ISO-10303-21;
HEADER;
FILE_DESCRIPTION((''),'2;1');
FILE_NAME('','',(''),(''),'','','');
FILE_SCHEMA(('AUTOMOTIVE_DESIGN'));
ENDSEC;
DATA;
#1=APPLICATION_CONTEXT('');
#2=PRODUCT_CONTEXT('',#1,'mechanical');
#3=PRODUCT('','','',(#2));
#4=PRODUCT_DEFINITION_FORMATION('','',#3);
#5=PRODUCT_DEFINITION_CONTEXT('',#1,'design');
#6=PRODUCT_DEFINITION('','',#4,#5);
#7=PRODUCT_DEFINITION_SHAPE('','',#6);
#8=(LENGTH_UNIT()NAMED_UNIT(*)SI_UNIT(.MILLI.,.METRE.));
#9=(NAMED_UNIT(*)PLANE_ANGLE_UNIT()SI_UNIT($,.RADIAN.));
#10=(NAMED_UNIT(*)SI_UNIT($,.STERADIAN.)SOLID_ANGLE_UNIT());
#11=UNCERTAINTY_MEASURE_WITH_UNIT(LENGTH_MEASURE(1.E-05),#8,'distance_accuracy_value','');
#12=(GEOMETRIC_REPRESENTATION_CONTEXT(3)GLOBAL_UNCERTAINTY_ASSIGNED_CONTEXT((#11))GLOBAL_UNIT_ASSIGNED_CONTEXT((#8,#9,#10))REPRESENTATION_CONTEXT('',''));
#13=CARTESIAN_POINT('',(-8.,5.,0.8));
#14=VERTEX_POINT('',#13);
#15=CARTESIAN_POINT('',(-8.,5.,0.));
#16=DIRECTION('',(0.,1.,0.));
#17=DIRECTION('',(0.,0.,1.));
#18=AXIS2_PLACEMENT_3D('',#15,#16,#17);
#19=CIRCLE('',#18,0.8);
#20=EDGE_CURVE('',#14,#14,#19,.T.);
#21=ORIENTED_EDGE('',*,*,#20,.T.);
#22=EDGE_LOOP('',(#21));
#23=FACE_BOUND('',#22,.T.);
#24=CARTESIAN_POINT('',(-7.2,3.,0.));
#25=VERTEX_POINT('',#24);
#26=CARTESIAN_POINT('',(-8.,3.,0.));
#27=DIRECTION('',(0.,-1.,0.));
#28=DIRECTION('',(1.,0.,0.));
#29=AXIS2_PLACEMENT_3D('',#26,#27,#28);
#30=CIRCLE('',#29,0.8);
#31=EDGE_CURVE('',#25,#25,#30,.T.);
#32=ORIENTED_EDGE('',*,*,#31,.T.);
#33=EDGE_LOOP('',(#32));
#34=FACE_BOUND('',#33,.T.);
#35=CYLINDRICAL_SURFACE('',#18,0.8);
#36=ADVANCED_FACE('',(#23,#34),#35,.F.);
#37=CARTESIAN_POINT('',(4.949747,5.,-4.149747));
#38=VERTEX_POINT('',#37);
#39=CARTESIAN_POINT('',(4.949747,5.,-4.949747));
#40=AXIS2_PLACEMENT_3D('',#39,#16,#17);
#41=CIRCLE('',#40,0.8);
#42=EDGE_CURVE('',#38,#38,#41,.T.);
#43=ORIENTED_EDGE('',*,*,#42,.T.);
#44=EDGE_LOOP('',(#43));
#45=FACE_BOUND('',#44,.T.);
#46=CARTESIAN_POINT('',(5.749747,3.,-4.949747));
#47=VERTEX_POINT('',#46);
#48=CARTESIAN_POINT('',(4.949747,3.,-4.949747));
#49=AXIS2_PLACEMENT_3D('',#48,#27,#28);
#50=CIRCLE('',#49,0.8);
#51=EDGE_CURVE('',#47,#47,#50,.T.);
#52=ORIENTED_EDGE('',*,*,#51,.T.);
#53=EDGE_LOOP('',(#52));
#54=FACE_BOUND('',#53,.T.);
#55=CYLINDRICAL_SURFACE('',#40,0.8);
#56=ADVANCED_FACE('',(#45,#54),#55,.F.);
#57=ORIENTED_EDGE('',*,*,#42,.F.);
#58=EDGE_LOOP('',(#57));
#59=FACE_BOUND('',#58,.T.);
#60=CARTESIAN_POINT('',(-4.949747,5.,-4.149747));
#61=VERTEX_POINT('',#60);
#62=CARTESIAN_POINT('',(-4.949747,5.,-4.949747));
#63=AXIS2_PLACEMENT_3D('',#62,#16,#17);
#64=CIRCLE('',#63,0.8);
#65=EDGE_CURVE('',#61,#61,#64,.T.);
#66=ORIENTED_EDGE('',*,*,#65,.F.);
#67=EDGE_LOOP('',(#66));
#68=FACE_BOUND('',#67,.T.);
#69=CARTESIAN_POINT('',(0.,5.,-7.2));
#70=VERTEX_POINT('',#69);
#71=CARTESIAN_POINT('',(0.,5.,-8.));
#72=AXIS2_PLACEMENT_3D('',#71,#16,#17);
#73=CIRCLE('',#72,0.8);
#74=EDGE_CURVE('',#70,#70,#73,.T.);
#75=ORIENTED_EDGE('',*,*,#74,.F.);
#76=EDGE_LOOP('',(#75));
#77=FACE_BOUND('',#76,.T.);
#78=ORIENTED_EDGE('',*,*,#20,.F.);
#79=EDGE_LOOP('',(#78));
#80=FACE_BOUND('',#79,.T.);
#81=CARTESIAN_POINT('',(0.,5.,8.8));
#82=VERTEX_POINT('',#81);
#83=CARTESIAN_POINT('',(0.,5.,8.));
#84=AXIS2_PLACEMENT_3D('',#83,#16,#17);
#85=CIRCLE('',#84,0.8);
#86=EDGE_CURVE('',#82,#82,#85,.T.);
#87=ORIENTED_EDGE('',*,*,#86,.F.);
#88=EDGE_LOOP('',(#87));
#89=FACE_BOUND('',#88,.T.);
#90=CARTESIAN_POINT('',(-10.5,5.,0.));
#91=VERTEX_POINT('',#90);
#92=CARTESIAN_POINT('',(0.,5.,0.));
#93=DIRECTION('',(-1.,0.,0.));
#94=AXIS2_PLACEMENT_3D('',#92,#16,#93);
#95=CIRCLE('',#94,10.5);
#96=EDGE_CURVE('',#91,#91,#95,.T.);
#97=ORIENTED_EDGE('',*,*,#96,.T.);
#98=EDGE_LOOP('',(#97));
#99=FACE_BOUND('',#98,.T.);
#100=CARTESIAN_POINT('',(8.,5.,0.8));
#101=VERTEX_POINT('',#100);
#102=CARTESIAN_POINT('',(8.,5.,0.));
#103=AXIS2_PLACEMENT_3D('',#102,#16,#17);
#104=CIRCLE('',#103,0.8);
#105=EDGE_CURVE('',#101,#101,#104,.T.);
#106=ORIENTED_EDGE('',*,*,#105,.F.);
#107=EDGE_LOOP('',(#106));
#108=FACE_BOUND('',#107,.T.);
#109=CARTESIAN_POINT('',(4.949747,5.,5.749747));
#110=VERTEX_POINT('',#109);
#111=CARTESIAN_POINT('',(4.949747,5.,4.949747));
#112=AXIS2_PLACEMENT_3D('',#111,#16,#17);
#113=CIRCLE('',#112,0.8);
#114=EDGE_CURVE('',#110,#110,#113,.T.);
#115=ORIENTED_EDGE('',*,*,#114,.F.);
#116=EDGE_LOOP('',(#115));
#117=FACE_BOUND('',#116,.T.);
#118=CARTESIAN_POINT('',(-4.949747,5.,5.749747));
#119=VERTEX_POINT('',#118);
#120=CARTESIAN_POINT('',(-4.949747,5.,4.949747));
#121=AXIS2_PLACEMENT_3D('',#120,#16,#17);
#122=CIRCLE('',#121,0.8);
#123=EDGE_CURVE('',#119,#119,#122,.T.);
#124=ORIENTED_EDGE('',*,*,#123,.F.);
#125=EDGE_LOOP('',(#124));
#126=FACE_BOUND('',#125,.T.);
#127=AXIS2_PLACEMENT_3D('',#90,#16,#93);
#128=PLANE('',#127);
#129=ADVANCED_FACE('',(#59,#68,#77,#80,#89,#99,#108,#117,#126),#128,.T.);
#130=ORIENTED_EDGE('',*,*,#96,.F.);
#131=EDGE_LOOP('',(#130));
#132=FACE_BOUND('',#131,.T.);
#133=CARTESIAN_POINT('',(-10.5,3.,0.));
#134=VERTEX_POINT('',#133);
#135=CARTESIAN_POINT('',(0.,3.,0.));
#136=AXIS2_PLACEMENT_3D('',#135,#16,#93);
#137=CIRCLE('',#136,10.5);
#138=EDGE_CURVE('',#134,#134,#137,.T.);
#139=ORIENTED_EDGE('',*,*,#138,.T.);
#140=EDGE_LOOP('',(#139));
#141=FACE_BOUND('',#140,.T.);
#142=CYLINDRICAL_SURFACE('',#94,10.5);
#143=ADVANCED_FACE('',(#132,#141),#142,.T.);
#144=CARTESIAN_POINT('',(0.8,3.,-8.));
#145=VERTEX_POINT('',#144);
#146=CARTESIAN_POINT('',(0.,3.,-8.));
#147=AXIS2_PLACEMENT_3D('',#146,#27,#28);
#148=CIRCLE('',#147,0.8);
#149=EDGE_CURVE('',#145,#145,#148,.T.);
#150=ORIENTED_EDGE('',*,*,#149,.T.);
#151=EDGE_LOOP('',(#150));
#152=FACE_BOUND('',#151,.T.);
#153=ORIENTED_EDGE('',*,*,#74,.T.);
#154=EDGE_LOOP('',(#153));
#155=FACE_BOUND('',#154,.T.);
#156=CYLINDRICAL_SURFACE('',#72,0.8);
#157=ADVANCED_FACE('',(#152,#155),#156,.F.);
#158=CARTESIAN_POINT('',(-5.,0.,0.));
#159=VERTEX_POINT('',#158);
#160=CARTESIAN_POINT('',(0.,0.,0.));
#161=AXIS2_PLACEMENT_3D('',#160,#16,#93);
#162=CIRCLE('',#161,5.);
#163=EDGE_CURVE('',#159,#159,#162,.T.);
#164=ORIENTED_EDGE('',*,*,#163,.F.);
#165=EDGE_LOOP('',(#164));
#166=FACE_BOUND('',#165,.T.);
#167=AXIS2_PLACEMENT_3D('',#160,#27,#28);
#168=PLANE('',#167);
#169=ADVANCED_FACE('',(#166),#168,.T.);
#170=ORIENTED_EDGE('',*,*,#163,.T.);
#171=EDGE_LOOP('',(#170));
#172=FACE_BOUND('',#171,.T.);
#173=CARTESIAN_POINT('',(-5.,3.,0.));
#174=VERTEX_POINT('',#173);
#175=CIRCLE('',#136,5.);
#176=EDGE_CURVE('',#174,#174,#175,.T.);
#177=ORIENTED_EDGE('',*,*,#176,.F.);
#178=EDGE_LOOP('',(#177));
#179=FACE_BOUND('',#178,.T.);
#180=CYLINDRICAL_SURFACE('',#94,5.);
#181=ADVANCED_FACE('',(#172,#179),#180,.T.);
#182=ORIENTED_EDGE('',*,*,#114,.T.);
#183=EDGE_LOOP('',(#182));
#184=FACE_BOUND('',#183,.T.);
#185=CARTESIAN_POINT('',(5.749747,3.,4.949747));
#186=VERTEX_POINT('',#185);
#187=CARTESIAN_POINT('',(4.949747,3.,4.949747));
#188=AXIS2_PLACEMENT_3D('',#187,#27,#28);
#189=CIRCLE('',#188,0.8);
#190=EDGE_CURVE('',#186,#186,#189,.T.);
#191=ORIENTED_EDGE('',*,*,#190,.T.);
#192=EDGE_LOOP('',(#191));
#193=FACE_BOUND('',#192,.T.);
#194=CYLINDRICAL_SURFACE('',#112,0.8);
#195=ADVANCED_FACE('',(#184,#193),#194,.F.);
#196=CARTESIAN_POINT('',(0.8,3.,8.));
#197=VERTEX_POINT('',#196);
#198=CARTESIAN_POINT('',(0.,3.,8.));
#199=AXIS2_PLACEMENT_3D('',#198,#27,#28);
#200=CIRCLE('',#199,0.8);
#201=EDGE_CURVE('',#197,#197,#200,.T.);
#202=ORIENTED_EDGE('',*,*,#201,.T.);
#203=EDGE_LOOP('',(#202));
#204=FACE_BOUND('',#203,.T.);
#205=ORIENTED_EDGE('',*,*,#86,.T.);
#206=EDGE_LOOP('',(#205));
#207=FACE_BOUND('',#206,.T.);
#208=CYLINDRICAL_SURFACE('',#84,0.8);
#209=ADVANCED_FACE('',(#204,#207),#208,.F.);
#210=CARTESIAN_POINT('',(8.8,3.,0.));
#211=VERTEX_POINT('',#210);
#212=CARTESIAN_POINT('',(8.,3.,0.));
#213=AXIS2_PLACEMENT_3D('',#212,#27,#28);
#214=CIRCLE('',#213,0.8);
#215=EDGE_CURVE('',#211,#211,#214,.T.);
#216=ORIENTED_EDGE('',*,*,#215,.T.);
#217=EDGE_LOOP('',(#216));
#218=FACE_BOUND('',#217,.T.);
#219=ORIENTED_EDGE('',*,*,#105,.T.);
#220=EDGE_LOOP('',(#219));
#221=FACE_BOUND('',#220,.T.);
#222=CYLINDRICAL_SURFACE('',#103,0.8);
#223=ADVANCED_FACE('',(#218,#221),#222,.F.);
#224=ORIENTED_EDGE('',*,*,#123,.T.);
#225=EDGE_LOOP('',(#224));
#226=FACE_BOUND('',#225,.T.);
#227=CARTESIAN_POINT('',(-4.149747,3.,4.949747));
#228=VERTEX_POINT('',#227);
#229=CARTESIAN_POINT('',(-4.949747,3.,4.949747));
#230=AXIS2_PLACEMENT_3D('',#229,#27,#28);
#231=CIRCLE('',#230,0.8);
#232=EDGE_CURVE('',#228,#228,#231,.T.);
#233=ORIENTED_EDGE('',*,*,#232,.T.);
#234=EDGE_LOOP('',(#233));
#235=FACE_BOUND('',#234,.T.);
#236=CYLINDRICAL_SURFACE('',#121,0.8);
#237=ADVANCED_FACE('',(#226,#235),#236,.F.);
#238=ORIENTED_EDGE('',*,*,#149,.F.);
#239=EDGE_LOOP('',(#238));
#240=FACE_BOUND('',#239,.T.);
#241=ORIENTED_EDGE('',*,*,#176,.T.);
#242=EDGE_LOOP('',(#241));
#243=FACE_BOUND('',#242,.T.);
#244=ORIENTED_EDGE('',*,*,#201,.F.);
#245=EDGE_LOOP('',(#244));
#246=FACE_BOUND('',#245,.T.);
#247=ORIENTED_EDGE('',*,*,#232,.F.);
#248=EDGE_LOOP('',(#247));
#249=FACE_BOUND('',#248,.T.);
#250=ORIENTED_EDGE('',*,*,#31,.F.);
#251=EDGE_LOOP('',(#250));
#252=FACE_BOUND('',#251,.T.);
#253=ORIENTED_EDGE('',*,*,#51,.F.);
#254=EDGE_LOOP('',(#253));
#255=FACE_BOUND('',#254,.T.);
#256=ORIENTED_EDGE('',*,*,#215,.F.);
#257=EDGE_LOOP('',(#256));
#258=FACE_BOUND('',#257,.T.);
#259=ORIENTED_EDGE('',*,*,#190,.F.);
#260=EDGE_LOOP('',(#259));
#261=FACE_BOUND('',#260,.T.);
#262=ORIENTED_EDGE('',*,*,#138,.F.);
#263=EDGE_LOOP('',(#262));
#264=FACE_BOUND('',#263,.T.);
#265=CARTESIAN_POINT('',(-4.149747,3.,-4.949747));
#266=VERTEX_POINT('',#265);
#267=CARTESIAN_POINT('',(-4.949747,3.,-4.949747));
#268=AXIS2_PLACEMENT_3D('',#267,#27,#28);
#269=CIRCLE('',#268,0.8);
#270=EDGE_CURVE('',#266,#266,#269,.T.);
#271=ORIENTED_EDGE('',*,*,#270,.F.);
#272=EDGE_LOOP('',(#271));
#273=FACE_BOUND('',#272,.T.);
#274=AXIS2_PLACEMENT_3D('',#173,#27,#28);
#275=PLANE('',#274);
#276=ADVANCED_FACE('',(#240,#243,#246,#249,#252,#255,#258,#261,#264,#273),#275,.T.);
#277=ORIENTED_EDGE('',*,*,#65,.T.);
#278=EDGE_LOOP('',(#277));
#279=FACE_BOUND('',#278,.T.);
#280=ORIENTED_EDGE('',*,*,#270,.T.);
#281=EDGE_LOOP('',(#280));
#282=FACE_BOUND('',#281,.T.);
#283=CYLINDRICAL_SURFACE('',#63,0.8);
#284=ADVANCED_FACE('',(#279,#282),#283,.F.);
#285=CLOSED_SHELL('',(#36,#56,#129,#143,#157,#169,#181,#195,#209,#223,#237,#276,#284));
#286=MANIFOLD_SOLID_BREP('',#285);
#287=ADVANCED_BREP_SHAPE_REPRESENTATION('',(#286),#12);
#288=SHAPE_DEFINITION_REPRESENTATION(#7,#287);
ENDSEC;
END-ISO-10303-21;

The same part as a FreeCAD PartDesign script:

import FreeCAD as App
import Part
import Sketcher
from FreeCAD import Vector
Q = App.Units.Quantity

doc = App.newDocument("Part")
params = doc.addObject("Spreadsheet::Sheet", "Params")
for row, (alias, value) in enumerate([
    ("sketch1_width", "5 mm"),
    ("sketch1_height", "3 mm"),
    ("sketch1_width2", "10.5 mm"),
    ("revolution_angle", "360 deg"),
    ("sketch2_width", "6 mm"),
    ("sketch2_height", "0.8 mm"),
    ("groove_angle", "360 deg"),
    ("linearpattern_pitch", "5.814124 mm"),
    ("sketch3_height", "6 mm"),
    ("sketch3_width", "0.8 mm"),
    ("groove2_angle", "360 deg"),
    ("sketch4_width", "6 mm"),
    ("sketch4_height", "0.8 mm"),
    ("groove3_angle", "360 deg"),
    ("sketch5_height", "6 mm"),
    ("sketch5_width", "0.8 mm"),
    ("groove4_angle", "360 deg"),
], start=1):
    params.set(f"A{row}", alias)
    params.set(f"B{row}", "=" + value)
    params.setAlias(f"B{row}", alias)

body = doc.addObject("PartDesign::Body", "Body")

sketch1 = doc.addObject("Sketcher::SketchObject", "Sketch")
body.addObject(sketch1)
sketch1.AttachmentSupport = (doc.XY_Plane, [""])
sketch1.MapMode = "FlatFace"
sketch1.addGeometry(Part.LineSegment(Vector(-5, 3, 0), Vector(-5, 0, 0)), False)
sketch1.addGeometry(Part.LineSegment(Vector(-5, 0, 0), Vector(0, 0, 0)), False)
sketch1.addGeometry(Part.LineSegment(Vector(0, 0, 0), Vector(0, 5, 0)), False)
sketch1.addGeometry(Part.LineSegment(Vector(0, 5, 0), Vector(-10.5, 5, 0)), False)
sketch1.addGeometry(Part.LineSegment(Vector(-10.5, 5, 0), Vector(-10.5, 3, 0)), False)
sketch1.addGeometry(Part.LineSegment(Vector(-10.5, 3, 0), Vector(-5, 3, 0)), False)
sketch1.addConstraint(Sketcher.Constraint("Coincident", 0, 2, 1, 1))
sketch1.addConstraint(Sketcher.Constraint("Coincident", 1, 2, 2, 1))
sketch1.addConstraint(Sketcher.Constraint("Coincident", 2, 2, 3, 1))
sketch1.addConstraint(Sketcher.Constraint("Coincident", 3, 2, 4, 1))
sketch1.addConstraint(Sketcher.Constraint("Coincident", 4, 2, 5, 1))
sketch1.addConstraint(Sketcher.Constraint("Coincident", 5, 2, 0, 1))
sketch1.addConstraint(Sketcher.Constraint("Vertical", 0))
sketch1.addConstraint(Sketcher.Constraint("Horizontal", 1))
sketch1.addConstraint(Sketcher.Constraint("Vertical", 2))
sketch1.addConstraint(Sketcher.Constraint("Horizontal", 3))
sketch1.addConstraint(Sketcher.Constraint("Vertical", 4))
sketch1.addConstraint(Sketcher.Constraint("Horizontal", 5))
sketch1.addConstraint(Sketcher.Constraint("Coincident", 1, 2, -1, 1))
sketch1.addConstraint(Sketcher.Constraint("Equal", 1, 2))
sketch1.addConstraint(Sketcher.Constraint("DistanceX", 1, 1, 1, 2, 5.0))
sketch1.addConstraint(Sketcher.Constraint("DistanceY", 0, 2, 0, 1, 3.0))
sketch1.addConstraint(Sketcher.Constraint("DistanceX", 3, 2, 3, 1, 10.5))
sketch1.setExpression("Constraints[14]", "Params.sketch1_width")
sketch1.setExpression("Constraints[15]", "Params.sketch1_height")
sketch1.setExpression("Constraints[16]", "Params.sketch1_width2")
revolution = doc.addObject("PartDesign::Revolution", "Revolution")
body.addObject(revolution)
revolution.Profile = sketch1
revolution.ReferenceAxis = (sketch1, ["V_Axis"])
revolution.setExpression("Angle", "Params.revolution_angle")

sketch2 = doc.addObject("Sketcher::SketchObject", "Sketch001")
body.addObject(sketch2)
sketch2.AttachmentSupport = (doc.YZ_Plane, [""])
sketch2.MapMode = "FlatFace"
sketch2.AttachmentOffset = App.Placement(Vector(0, 0, 8), App.Rotation())
sketch2.addGeometry(Part.LineSegment(Vector(-1.5, 0, 0), Vector(5, 0, 0)), False)
sketch2.addGeometry(Part.LineSegment(Vector(5, 0, 0), Vector(5, 0.8, 0)), False)
sketch2.addGeometry(Part.LineSegment(Vector(5, 0.8, 0), Vector(-1, 0.8, 0)), False)
sketch2.addGeometry(Part.LineSegment(Vector(-1, 0.8, 0), Vector(-1.5, 0, 0)), False)
sketch2.addConstraint(Sketcher.Constraint("Coincident", 0, 2, 1, 1))
sketch2.addConstraint(Sketcher.Constraint("Coincident", 1, 2, 2, 1))
sketch2.addConstraint(Sketcher.Constraint("Coincident", 2, 2, 3, 1))
sketch2.addConstraint(Sketcher.Constraint("Coincident", 3, 2, 0, 1))
sketch2.addConstraint(Sketcher.Constraint("Horizontal", 0))
sketch2.addConstraint(Sketcher.Constraint("Vertical", 1))
sketch2.addConstraint(Sketcher.Constraint("Horizontal", 2))
sketch2.addConstraint(Sketcher.Constraint("PointOnObject", 0, 2, -1))
sketch2.addConstraint(Sketcher.Constraint("DistanceX", 2, 2, 2, 1, 6.0))
sketch2.addConstraint(Sketcher.Constraint("Angle", 3, Q("-121 deg")))
sketch2.addConstraint(Sketcher.Constraint("DistanceY", 1, 1, 1, 2, 0.8))
sketch2.addConstraint(Sketcher.Constraint("DistanceX", -1, 1, 0, 2, 5.0))
sketch2.setExpression("Constraints[8]", "Params.sketch2_width")
sketch2.setExpression("Constraints[10]", "Params.sketch2_height")
groove = doc.addObject("PartDesign::Groove", "Groove")
body.addObject(groove)
groove.Profile = sketch2
groove.ReferenceAxis = (sketch2, ["H_Axis"])
groove.setExpression("Angle", "Params.groove_angle")
doc.recompute()

datumline = doc.addObject("PartDesign::Line", "DatumLine")
body.addObject(datumline)
datumline.Placement = App.Placement(Vector(0, 0, 0), App.Rotation(Vector(0, 0, 1), Vector(-0.524628029, 0, 0.851331564)))
linearpattern = doc.addObject("PartDesign::LinearPattern", "LinearPattern")
body.addObject(linearpattern)
linearpattern.Originals = [groove]
linearpattern.Direction = (datumline, [""])
linearpattern.Mode = "offset"
linearpattern.setExpression("Offset", "Params.linearpattern_pitch")
linearpattern.Occurrences = 2
body.Tip = linearpattern
doc.recompute()

polarpattern = doc.addObject("PartDesign::PolarPattern", "PolarPattern")
body.addObject(polarpattern)
polarpattern.Originals = [groove]
polarpattern.Axis = (doc.Y_Axis, [""])
polarpattern.Angle = 360
polarpattern.Occurrences = 4
body.Tip = polarpattern

sketch3 = doc.addObject("Sketcher::SketchObject", "Sketch002")
body.addObject(sketch3)
sketch3.AttachmentSupport = (doc.XY_Plane, [""])
sketch3.MapMode = "FlatFace"
sketch3.AttachmentOffset = App.Placement(Vector(0, 0, -4.949747), App.Rotation())
sketch3.addGeometry(Part.LineSegment(Vector(4.9, -1.5, 0), Vector(4.9, 5, 0)), False)
sketch3.addGeometry(Part.LineSegment(Vector(4.9, 5, 0), Vector(5.7, 5, 0)), False)
sketch3.addGeometry(Part.LineSegment(Vector(5.7, 5, 0), Vector(5.7, -1, 0)), False)
sketch3.addGeometry(Part.LineSegment(Vector(5.7, -1, 0), Vector(4.9, -1.5, 0)), False)
sketch3.addGeometry(Part.LineSegment(Vector(4.9, 5, 0), Vector(4.9, -1.5, 0)), True)
sketch3.addConstraint(Sketcher.Constraint("Coincident", 0, 2, 1, 1))
sketch3.addConstraint(Sketcher.Constraint("Coincident", 1, 2, 2, 1))
sketch3.addConstraint(Sketcher.Constraint("Coincident", 2, 2, 3, 1))
sketch3.addConstraint(Sketcher.Constraint("Coincident", 3, 2, 0, 1))
sketch3.addConstraint(Sketcher.Constraint("Vertical", 0))
sketch3.addConstraint(Sketcher.Constraint("Horizontal", 1))
sketch3.addConstraint(Sketcher.Constraint("Vertical", 2))
sketch3.addConstraint(Sketcher.Constraint("Vertical", 4))
sketch3.addConstraint(Sketcher.Constraint("Coincident", 4, 1, 0, 2))
sketch3.addConstraint(Sketcher.Constraint("Equal", 0, 4))
sketch3.addConstraint(Sketcher.Constraint("DistanceY", 2, 2, 2, 1, 6.0))
sketch3.addConstraint(Sketcher.Constraint("Angle", 3, Q("-149 deg")))
sketch3.addConstraint(Sketcher.Constraint("DistanceX", 1, 1, 1, 2, 0.8))
sketch3.addConstraint(Sketcher.Constraint("DistanceY", -1, 1, 0, 2, 5.0))
sketch3.addConstraint(Sketcher.Constraint("DistanceX", -1, 1, 0, 2, 4.949747))
sketch3.setExpression("Constraints[10]", "Params.sketch3_height")
sketch3.setExpression("Constraints[12]", "Params.sketch3_width")
groove2 = doc.addObject("PartDesign::Groove", "Groove001")
body.addObject(groove2)
groove2.Profile = sketch3
groove2.ReferenceAxis = (sketch3, ["Axis0"])
groove2.setExpression("Angle", "Params.groove2_angle")

sketch4 = doc.addObject("Sketcher::SketchObject", "Sketch003")
body.addObject(sketch4)
sketch4.AttachmentSupport = (doc.YZ_Plane, [""])
sketch4.MapMode = "FlatFace"
sketch4.AttachmentOffset = App.Placement(Vector(0, 0, -4.949747), App.Rotation())
sketch4.addGeometry(Part.LineSegment(Vector(-1.5, -4.9, 0), Vector(5, -4.9, 0)), False)
sketch4.addGeometry(Part.LineSegment(Vector(5, -4.9, 0), Vector(5, -5.7, 0)), False)
sketch4.addGeometry(Part.LineSegment(Vector(5, -5.7, 0), Vector(-1, -5.7, 0)), False)
sketch4.addGeometry(Part.LineSegment(Vector(-1, -5.7, 0), Vector(-1.5, -4.9, 0)), False)
sketch4.addGeometry(Part.LineSegment(Vector(5, -4.9, 0), Vector(-1.5, -4.9, 0)), True)
sketch4.addConstraint(Sketcher.Constraint("Coincident", 0, 2, 1, 1))
sketch4.addConstraint(Sketcher.Constraint("Coincident", 1, 2, 2, 1))
sketch4.addConstraint(Sketcher.Constraint("Coincident", 2, 2, 3, 1))
sketch4.addConstraint(Sketcher.Constraint("Coincident", 3, 2, 0, 1))
sketch4.addConstraint(Sketcher.Constraint("Horizontal", 0))
sketch4.addConstraint(Sketcher.Constraint("Vertical", 1))
sketch4.addConstraint(Sketcher.Constraint("Horizontal", 2))
sketch4.addConstraint(Sketcher.Constraint("Horizontal", 4))
sketch4.addConstraint(Sketcher.Constraint("Coincident", 4, 1, 0, 2))
sketch4.addConstraint(Sketcher.Constraint("Equal", 0, 4))
sketch4.addConstraint(Sketcher.Constraint("DistanceX", 2, 2, 2, 1, 6.0))
sketch4.addConstraint(Sketcher.Constraint("Angle", 3, Q("121 deg")))
sketch4.addConstraint(Sketcher.Constraint("DistanceY", 1, 2, 1, 1, 0.8))
sketch4.addConstraint(Sketcher.Constraint("DistanceX", -1, 1, 0, 2, 5.0))
sketch4.addConstraint(Sketcher.Constraint("DistanceY", 0, 2, -1, 1, 4.949747))
sketch4.setExpression("Constraints[10]", "Params.sketch4_width")
sketch4.setExpression("Constraints[12]", "Params.sketch4_height")
groove3 = doc.addObject("PartDesign::Groove", "Groove002")
body.addObject(groove3)
groove3.Profile = sketch4
groove3.ReferenceAxis = (sketch4, ["Axis0"])
groove3.setExpression("Angle", "Params.groove3_angle")

sketch5 = doc.addObject("Sketcher::SketchObject", "Sketch004")
body.addObject(sketch5)
sketch5.AttachmentSupport = (doc.XY_Plane, [""])
sketch5.MapMode = "FlatFace"
sketch5.AttachmentOffset = App.Placement(Vector(0, 0, 4.949747), App.Rotation())
sketch5.addGeometry(Part.LineSegment(Vector(-4.9, -1.5, 0), Vector(-4.9, 5, 0)), False)
sketch5.addGeometry(Part.LineSegment(Vector(-4.9, 5, 0), Vector(-5.7, 5, 0)), False)
sketch5.addGeometry(Part.LineSegment(Vector(-5.7, 5, 0), Vector(-5.7, -1, 0)), False)
sketch5.addGeometry(Part.LineSegment(Vector(-5.7, -1, 0), Vector(-4.9, -1.5, 0)), False)
sketch5.addGeometry(Part.LineSegment(Vector(-4.9, 5, 0), Vector(-4.9, -1.5, 0)), True)
sketch5.addConstraint(Sketcher.Constraint("Coincident", 0, 2, 1, 1))
sketch5.addConstraint(Sketcher.Constraint("Coincident", 1, 2, 2, 1))
sketch5.addConstraint(Sketcher.Constraint("Coincident", 2, 2, 3, 1))
sketch5.addConstraint(Sketcher.Constraint("Coincident", 3, 2, 0, 1))
sketch5.addConstraint(Sketcher.Constraint("Vertical", 0))
sketch5.addConstraint(Sketcher.Constraint("Horizontal", 1))
sketch5.addConstraint(Sketcher.Constraint("Vertical", 2))
sketch5.addConstraint(Sketcher.Constraint("Vertical", 4))
sketch5.addConstraint(Sketcher.Constraint("Coincident", 4, 1, 0, 2))
sketch5.addConstraint(Sketcher.Constraint("Equal", 0, 4))
sketch5.addConstraint(Sketcher.Constraint("DistanceY", 2, 2, 2, 1, 6.0))
sketch5.addConstraint(Sketcher.Constraint("Angle", 3, Q("-31 deg")))
sketch5.addConstraint(Sketcher.Constraint("DistanceX", 1, 2, 1, 1, 0.8))
sketch5.addConstraint(Sketcher.Constraint("DistanceY", -1, 1, 0, 2, 5.0))
sketch5.addConstraint(Sketcher.Constraint("DistanceX", 0, 2, -1, 1, 4.949747))
sketch5.setExpression("Constraints[10]", "Params.sketch5_height")
sketch5.setExpression("Constraints[12]", "Params.sketch5_width")
groove4 = doc.addObject("PartDesign::Groove", "Groove003")
body.addObject(groove4)
groove4.Profile = sketch5
groove4.ReferenceAxis = (sketch5, ["Axis0"])
groove4.setExpression("Angle", "Params.groove4_angle")

doc.recompute()
